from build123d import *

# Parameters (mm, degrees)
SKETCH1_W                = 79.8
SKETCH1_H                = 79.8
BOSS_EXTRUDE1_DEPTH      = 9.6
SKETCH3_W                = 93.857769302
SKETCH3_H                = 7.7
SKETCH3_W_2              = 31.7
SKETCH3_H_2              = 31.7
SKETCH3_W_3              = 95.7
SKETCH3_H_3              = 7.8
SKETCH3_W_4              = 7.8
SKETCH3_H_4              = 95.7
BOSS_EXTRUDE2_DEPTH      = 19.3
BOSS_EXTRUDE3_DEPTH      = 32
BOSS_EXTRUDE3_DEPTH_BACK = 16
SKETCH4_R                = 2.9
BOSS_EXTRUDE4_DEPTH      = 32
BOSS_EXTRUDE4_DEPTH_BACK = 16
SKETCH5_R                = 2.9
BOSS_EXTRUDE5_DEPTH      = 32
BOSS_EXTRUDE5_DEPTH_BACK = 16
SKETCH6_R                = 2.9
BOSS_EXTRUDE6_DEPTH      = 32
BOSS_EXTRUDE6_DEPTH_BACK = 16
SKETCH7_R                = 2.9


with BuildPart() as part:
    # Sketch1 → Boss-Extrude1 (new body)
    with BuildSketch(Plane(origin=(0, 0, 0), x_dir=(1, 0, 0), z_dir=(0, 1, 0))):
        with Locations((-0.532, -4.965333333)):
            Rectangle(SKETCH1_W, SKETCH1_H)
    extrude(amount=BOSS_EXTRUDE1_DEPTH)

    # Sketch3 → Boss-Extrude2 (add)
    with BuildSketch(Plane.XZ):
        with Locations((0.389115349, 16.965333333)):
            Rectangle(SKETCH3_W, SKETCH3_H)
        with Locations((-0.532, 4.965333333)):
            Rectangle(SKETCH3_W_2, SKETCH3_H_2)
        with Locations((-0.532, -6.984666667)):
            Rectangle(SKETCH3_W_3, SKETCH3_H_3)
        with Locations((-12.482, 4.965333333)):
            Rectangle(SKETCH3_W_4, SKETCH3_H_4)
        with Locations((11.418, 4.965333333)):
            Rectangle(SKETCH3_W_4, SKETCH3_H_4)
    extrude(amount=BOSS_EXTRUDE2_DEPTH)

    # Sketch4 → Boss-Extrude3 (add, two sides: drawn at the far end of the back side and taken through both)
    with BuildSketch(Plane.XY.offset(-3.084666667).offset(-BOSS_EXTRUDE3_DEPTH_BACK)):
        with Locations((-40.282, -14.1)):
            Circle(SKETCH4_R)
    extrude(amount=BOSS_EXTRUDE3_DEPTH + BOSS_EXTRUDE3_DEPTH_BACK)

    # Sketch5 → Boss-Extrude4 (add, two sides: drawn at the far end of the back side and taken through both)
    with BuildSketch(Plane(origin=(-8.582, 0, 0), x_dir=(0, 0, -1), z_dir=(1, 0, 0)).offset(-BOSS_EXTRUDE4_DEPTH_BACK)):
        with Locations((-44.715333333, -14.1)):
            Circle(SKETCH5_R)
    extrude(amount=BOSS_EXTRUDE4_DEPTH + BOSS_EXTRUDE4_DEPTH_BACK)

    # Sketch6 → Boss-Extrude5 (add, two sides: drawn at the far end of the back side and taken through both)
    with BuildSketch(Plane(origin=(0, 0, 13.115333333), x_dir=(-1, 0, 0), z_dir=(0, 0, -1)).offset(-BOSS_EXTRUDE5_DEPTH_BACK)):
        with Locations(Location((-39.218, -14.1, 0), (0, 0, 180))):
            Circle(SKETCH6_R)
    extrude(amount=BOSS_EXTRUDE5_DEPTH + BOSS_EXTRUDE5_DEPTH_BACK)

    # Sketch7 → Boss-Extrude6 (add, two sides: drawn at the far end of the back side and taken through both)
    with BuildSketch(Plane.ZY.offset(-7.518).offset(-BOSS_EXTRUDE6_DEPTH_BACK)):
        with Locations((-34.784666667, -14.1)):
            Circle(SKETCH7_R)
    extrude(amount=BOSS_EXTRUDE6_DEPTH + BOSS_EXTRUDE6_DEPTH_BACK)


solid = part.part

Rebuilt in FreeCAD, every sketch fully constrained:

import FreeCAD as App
import Part
import Sketcher
from FreeCAD import Vector
Q = App.Units.Quantity

doc = App.newDocument("Part")
body = doc.addObject("PartDesign::Body", "Body")

# Sketch on XZ plane
sketch1 = doc.addObject("Sketcher::SketchObject", "Sketch")
body.addObject(sketch1)
sketch1.AttachmentSupport = (doc.XZ_Plane, [""])
sketch1.MapMode = "FlatFace"
sketch1.addGeometry([
    Part.LineSegment(Vector(-40.432, -34.934667, 0), Vector(-40.432, 44.865333, 0)),
    Part.LineSegment(Vector(-40.432, 44.865333, 0), Vector(39.368, 44.865333, 0)),
    Part.LineSegment(Vector(39.368, 44.865333, 0), Vector(39.368, -34.934667, 0)),
    Part.LineSegment(Vector(39.368, -34.934667, 0), Vector(-40.432, -34.934667, 0)),
], False)
sketch1.addConstraint([
    Sketcher.Constraint("Coincident", 0, 2, 1, 1),
    Sketcher.Constraint("Coincident", 1, 2, 2, 1),
    Sketcher.Constraint("Coincident", 2, 2, 3, 1),
    Sketcher.Constraint("Coincident", 3, 2, 0, 1),
    Sketcher.Constraint("Vertical", 0),
    Sketcher.Constraint("Horizontal", 1),
    Sketcher.Constraint("Vertical", 2),
    Sketcher.Constraint("Horizontal", 3),
    Sketcher.Constraint("Equal", 3, 0),
    Sketcher.Constraint("DistanceX", 1, 1, 1, 2, Q("79.8 mm")),
    Sketcher.Constraint("DistanceX", 0, 2, -1, 1, Q("40.432 mm")),
    Sketcher.Constraint("DistanceY", -1, 1, 0, 2, Q("44.865333 mm")),
])
pad1 = doc.addObject("PartDesign::Pad", "Pad")
body.addObject(pad1)
pad1.Profile = sketch1
pad1.Length = 9.6
pad1.Reversed = True

# Sketch on XZ plane
sketch2 = doc.addObject("Sketcher::SketchObject", "Sketch001")
body.addObject(sketch2)
sketch2.AttachmentSupport = (doc.XZ_Plane, [""])
sketch2.MapMode = "FlatFace"
sketch2.addGeometry([
    Part.LineSegment(Vector(-46.539769, 20.815333, 0), Vector(-46.539769, 13.115333, 0)),  # 0
    Part.LineSegment(Vector(-46.539769, 13.115333, 0), Vector(-16.382, 13.115333, 0)),  # 1
    Part.LineSegment(Vector(-16.382, 13.115333, 0), Vector(-16.382, -3.084667, 0)),  # 2
    Part.LineSegment(Vector(-16.382, -3.084667, 0), Vector(-48.382, -3.084667, 0)),  # 3
    Part.LineSegment(Vector(-48.382, -3.084667, 0), Vector(-48.382, -10.884667, 0)),  # 4
    Part.LineSegment(Vector(-48.382, -10.884667, 0), Vector(-16.382, -10.884667, 0)),  # 5
    Part.LineSegment(Vector(-16.382, -10.884667, 0), Vector(-16.382, -42.884667, 0)),  # 6
    Part.LineSegment(Vector(-16.382, -42.884667, 0), Vector(-8.582, -42.884667, 0)),  # 7
    Part.LineSegment(Vector(-8.582, -42.884667, 0), Vector(-8.582, -10.884667, 0)),  # 8
    Part.LineSegment(Vector(-8.582, -10.884667, 0), Vector(7.518, -10.884667, 0)),  # 9
    Part.LineSegment(Vector(7.518, -10.884667, 0), Vector(7.518, -42.884667, 0)),  # 10
    Part.LineSegment(Vector(7.518, -42.884667, 0), Vector(15.318, -42.884667, 0)),  # 11
    Part.LineSegment(Vector(15.318, -42.884667, 0), Vector(15.318, -10.884667, 0)),  # 12
    Part.LineSegment(Vector(15.318, -10.884667, 0), Vector(47.318, -10.884667, 0)),  # 13
    Part.LineSegment(Vector(47.318, -10.884667, 0), Vector(47.318, -3.084667, 0)),  # 14
    Part.LineSegment(Vector(47.318, -3.084667, 0), Vector(15.318, -3.084667, 0)),  # 15
    Part.LineSegment(Vector(15.318, -3.084667, 0), Vector(15.318, 13.115333, 0)),  # 16
    Part.LineSegment(Vector(15.318, 13.115333, 0), Vector(47.318, 13.115333, 0)),  # 17
    Part.LineSegment(Vector(47.318, 13.115333, 0), Vector(47.318, 20.815333, 0)),  # 18
    Part.LineSegment(Vector(47.318, 20.815333, 0), Vector(15.318, 20.815333, 0)),  # 19
    Part.LineSegment(Vector(15.318, 20.815333, 0), Vector(15.318, 52.815333, 0)),  # 20
    Part.LineSegment(Vector(15.318, 52.815333, 0), Vector(7.518, 52.815333, 0)),  # 21
    Part.LineSegment(Vector(7.518, 52.815333, 0), Vector(7.518, 20.815333, 0)),  # 22
    Part.LineSegment(Vector(7.518, 20.815333, 0), Vector(-8.582, 20.815333, 0)),  # 23
    Part.LineSegment(Vector(-8.582, 20.815333, 0), Vector(-8.582, 52.815333, 0)),  # 24
    Part.LineSegment(Vector(-8.582, 52.815333, 0), Vector(-16.382, 52.815333, 0)),  # 25
    Part.LineSegment(Vector(-16.382, 52.815333, 0), Vector(-16.382, 20.815333, 0)),  # 26
    Part.LineSegment(Vector(-16.382, 20.815333, 0), Vector(-46.539769, 20.815333, 0)),  # 27
], False)
sketch2.addConstraint([
    Sketcher.Constraint("Coincident", 0, 2, 1, 1),
    Sketcher.Constraint("Coincident", 1, 2, 2, 1),
    Sketcher.Constraint("Coincident", 2, 2, 3, 1),
    Sketcher.Constraint("Coincident", 3, 2, 4, 1),
    Sketcher.Constraint("Coincident", 4, 2, 5, 1),
    Sketcher.Constraint("Coincident", 5, 2, 6, 1),
    Sketcher.Constraint("Coincident", 6, 2, 7, 1),
    Sketcher.Constraint("Coincident", 7, 2, 8, 1),
    Sketcher.Constraint("Coincident", 8, 2, 9, 1),
    Sketcher.Constraint("Coincident", 9, 2, 10, 1),
    Sketcher.Constraint("Coincident", 10, 2, 11, 1),
    Sketcher.Constraint("Coincident", 11, 2, 12, 1),
    Sketcher.Constraint("Coincident", 12, 2, 13, 1),
    Sketcher.Constraint("Coincident", 13, 2, 14, 1),
    Sketcher.Constraint("Coincident", 14, 2, 15, 1),
    Sketcher.Constraint("Coincident", 15, 2, 16, 1),
    Sketcher.Constraint("Coincident", 16, 2, 17, 1),
    Sketcher.Constraint("Coincident", 17, 2, 18, 1),
    Sketcher.Constraint("Coincident", 18, 2, 19, 1),
    Sketcher.Constraint("Coincident", 19, 2, 20, 1),
    Sketcher.Constraint("Coincident", 20, 2, 21, 1),
    Sketcher.Constraint("Coincident", 21, 2, 22, 1),
    Sketcher.Constraint("Coincident", 22, 2, 23, 1),
    Sketcher.Constraint("Coincident", 23, 2, 24, 1),
    Sketcher.Constraint("Coincident", 24, 2, 25, 1),
    Sketcher.Constraint("Coincident", 25, 2, 26, 1),
    Sketcher.Constraint("Coincident", 26, 2, 27, 1),
    Sketcher.Constraint("Coincident", 27, 2, 0, 1),
    Sketcher.Constraint("Vertical", 0),
    Sketcher.Constraint("Horizontal", 1),
    Sketcher.Constraint("Vertical", 2),
    Sketcher.Constraint("Horizontal", 3),
    Sketcher.Constraint("Vertical", 4),
    Sketcher.Constraint("Horizontal", 5),
    Sketcher.Constraint("Vertical", 6),
    Sketcher.Constraint("Horizontal", 7),
    Sketcher.Constraint("Vertical", 8),
    Sketcher.Constraint("Horizontal", 9),
    Sketcher.Constraint("Vertical", 10),
    Sketcher.Constraint("Horizontal", 11),
    Sketcher.Constraint("Vertical", 12),
    Sketcher.Constraint("Horizontal", 13),
    Sketcher.Constraint("Vertical", 14),
    Sketcher.Constraint("Horizontal", 15),
    Sketcher.Constraint("Vertical", 16),
    Sketcher.Constraint("Horizontal", 17),
    Sketcher.Constraint("Vertical", 18),
    Sketcher.Constraint("Horizontal", 19),
    Sketcher.Constraint("Vertical", 20),
    Sketcher.Constraint("Horizontal", 21),
    Sketcher.Constraint("Vertical", 22),
    Sketcher.Constraint("Horizontal", 23),
    Sketcher.Constraint("Vertical", 24),
    Sketcher.Constraint("Horizontal", 25),
    Sketcher.Constraint("Vertical", 26),
    Sketcher.Constraint("Horizontal", 27),
    Sketcher.Constraint("Horizontal", 5, 2, 8, 2),
    Sketcher.Constraint("Horizontal", 7, 2, 10, 2),
    Sketcher.Constraint("Horizontal", 9, 2, 12, 2),
    Sketcher.Constraint("Horizontal", 3, 2, 14, 2),
    Sketcher.Constraint("Horizontal", 1, 2, 16, 2),
    Sketcher.Constraint("Horizontal", 19, 2, 22, 2),
    Sketcher.Constraint("Horizontal", 21, 2, 24, 2),
    Sketcher.Constraint("Horizontal", 23, 2, 26, 2),
    Sketcher.Constraint("Vertical", 2, 2, 5, 2),
    Sketcher.Constraint("Vertical", 12, 2, 15, 2),
    Sketcher.Constraint("Vertical", 14, 2, 17, 2),
    Sketcher.Constraint("Vertical", 16, 2, 19, 2),
    Sketcher.Constraint("Vertical", 10, 2, 21, 2),
    Sketcher.Constraint("Vertical", 8, 2, 23, 2),
    Sketcher.Constraint("Vertical", 6, 2, 25, 2),
    Sketcher.Constraint("Equal", 7, 11),
    Sketcher.Constraint("Equal", 5, 13),
    Sketcher.Constraint("Equal", 25, 4),
    Sketcher.Constraint("Equal", 19, 6),
    Sketcher.Constraint("Equal", 12, 20),
    Sketcher.Constraint("DistanceX", 3, 2, 3, 1, Q("32 mm")),
    Sketcher.Constraint("DistanceX", 7, 1, 7, 2, Q("7.8 mm")),
    Sketcher.Constraint("DistanceX", 9, 1, 9, 2, Q("16.1 mm")),
    Sketcher.Constraint("DistanceY", 0, 2, 0, 1, Q("7.7 mm")),
    Sketcher.Constraint("DistanceY", 2, 2, 2, 1, Q("16.2 mm")),
    Sketcher.Constraint("DistanceX", 1, 2, -1, 1, Q("16.382 mm")),
    Sketcher.Constraint("DistanceX", 1, 1, 1, 2, Q("30.157769 mm")),
    Sketcher.Constraint("DistanceY", -1, 1, 0, 2, Q("13.115333 mm")),
])
pad2 = doc.addObject("PartDesign::Pad", "Pad001")
body.addObject(pad2)
pad2.Profile = sketch2
pad2.Length = 19.3

# Sketch on XY plane
sketch3 = doc.addObject("Sketcher::SketchObject", "Sketch002")
body.addObject(sketch3)
sketch3.AttachmentSupport = (doc.XY_Plane, [""])
sketch3.MapMode = "FlatFace"
sketch3.AttachmentOffset = App.Placement(Vector(0, 0, -3.084667), App.Rotation())
sketch3.addGeometry(Part.Circle(Vector(-40.282, -14.1, 0), Vector(0, 0, 1), 2.9), False)
sketch3.addConstraint([
    Sketcher.Constraint("Diameter", 0, Q("5.8 mm")),
    Sketcher.Constraint("DistanceY", 0, 3, -1, 1, Q("14.1 mm")),
    Sketcher.Constraint("DistanceX", 0, 3, -1, 1, Q("40.282 mm")),
])
pad3 = doc.addObject("PartDesign::Pad", "Pad002")
body.addObject(pad3)
pad3.Profile = sketch3
pad3.Type = "TwoLengths"
pad3.Length = 32
pad3.Length2 = 16

# Sketch on YZ plane
sketch4 = doc.addObject("Sketcher::SketchObject", "Sketch003")
body.addObject(sketch4)
sketch4.AttachmentSupport = (doc.YZ_Plane, [""])
sketch4.MapMode = "FlatFace"
sketch4.AttachmentOffset = App.Placement(Vector(0, 0, -8.582), App.Rotation())
sketch4.addGeometry(Part.Circle(Vector(-14.1, 44.715333, 0), Vector(0, 0, 1), 2.9), False)
sketch4.addConstraint([
    Sketcher.Constraint("Diameter", 0, Q("5.8 mm")),
    Sketcher.Constraint("DistanceX", 0, 3, -1, 1, Q("14.1 mm")),
    Sketcher.Constraint("DistanceY", -1, 1, 0, 3, Q("44.715333 mm")),
])
pad4 = doc.addObject("PartDesign::Pad", "Pad003")
body.addObject(pad4)
pad4.Profile = sketch4
pad4.Type = "TwoLengths"
pad4.Length = 32
pad4.Length2 = 16

# Sketch on XY plane
sketch5 = doc.addObject("Sketcher::SketchObject", "Sketch004")
body.addObject(sketch5)
sketch5.AttachmentSupport = (doc.XY_Plane, [""])
sketch5.MapMode = "FlatFace"
sketch5.AttachmentOffset = App.Placement(Vector(0, 0, 13.115333), App.Rotation())
sketch5.addGeometry(Part.Circle(Vector(39.218, -14.1, 0), Vector(0, 0, 1), 2.9), False)
sketch5.addConstraint([
    Sketcher.Constraint("Diameter", 0, Q("5.8 mm")),
    Sketcher.Constraint("DistanceY", 0, 3, -1, 1, Q("14.1 mm")),
    Sketcher.Constraint("DistanceX", -1, 1, 0, 3, Q("39.218 mm")),
])
pad5 = doc.addObject("PartDesign::Pad", "Pad004")
body.addObject(pad5)
pad5.Profile = sketch5
pad5.Type = "TwoLengths"
pad5.Length = 32
pad5.Length2 = 16
pad5.Reversed = True

# Sketch on YZ plane
sketch6 = doc.addObject("Sketcher::SketchObject", "Sketch005")
body.addObject(sketch6)
sketch6.AttachmentSupport = (doc.YZ_Plane, [""])
sketch6.MapMode = "FlatFace"
sketch6.AttachmentOffset = App.Placement(Vector(0, 0, 7.518), App.Rotation())
sketch6.addGeometry(Part.Circle(Vector(-14.1, -34.784667, 0), Vector(0, 0, 1), 2.9), False)
sketch6.addConstraint([
    Sketcher.Constraint("Diameter", 0, Q("5.8 mm")),
    Sketcher.Constraint("DistanceX", 0, 3, -1, 1, Q("14.1 mm")),
    Sketcher.Constraint("DistanceY", 0, 3, -1, 1, Q("34.784667 mm")),
])
pad6 = doc.addObject("PartDesign::Pad", "Pad005")
body.addObject(pad6)
pad6.Profile = sketch6
pad6.Type = "TwoLengths"
pad6.Length = 32
pad6.Length2 = 16
pad6.Reversed = True

doc.recompute()
